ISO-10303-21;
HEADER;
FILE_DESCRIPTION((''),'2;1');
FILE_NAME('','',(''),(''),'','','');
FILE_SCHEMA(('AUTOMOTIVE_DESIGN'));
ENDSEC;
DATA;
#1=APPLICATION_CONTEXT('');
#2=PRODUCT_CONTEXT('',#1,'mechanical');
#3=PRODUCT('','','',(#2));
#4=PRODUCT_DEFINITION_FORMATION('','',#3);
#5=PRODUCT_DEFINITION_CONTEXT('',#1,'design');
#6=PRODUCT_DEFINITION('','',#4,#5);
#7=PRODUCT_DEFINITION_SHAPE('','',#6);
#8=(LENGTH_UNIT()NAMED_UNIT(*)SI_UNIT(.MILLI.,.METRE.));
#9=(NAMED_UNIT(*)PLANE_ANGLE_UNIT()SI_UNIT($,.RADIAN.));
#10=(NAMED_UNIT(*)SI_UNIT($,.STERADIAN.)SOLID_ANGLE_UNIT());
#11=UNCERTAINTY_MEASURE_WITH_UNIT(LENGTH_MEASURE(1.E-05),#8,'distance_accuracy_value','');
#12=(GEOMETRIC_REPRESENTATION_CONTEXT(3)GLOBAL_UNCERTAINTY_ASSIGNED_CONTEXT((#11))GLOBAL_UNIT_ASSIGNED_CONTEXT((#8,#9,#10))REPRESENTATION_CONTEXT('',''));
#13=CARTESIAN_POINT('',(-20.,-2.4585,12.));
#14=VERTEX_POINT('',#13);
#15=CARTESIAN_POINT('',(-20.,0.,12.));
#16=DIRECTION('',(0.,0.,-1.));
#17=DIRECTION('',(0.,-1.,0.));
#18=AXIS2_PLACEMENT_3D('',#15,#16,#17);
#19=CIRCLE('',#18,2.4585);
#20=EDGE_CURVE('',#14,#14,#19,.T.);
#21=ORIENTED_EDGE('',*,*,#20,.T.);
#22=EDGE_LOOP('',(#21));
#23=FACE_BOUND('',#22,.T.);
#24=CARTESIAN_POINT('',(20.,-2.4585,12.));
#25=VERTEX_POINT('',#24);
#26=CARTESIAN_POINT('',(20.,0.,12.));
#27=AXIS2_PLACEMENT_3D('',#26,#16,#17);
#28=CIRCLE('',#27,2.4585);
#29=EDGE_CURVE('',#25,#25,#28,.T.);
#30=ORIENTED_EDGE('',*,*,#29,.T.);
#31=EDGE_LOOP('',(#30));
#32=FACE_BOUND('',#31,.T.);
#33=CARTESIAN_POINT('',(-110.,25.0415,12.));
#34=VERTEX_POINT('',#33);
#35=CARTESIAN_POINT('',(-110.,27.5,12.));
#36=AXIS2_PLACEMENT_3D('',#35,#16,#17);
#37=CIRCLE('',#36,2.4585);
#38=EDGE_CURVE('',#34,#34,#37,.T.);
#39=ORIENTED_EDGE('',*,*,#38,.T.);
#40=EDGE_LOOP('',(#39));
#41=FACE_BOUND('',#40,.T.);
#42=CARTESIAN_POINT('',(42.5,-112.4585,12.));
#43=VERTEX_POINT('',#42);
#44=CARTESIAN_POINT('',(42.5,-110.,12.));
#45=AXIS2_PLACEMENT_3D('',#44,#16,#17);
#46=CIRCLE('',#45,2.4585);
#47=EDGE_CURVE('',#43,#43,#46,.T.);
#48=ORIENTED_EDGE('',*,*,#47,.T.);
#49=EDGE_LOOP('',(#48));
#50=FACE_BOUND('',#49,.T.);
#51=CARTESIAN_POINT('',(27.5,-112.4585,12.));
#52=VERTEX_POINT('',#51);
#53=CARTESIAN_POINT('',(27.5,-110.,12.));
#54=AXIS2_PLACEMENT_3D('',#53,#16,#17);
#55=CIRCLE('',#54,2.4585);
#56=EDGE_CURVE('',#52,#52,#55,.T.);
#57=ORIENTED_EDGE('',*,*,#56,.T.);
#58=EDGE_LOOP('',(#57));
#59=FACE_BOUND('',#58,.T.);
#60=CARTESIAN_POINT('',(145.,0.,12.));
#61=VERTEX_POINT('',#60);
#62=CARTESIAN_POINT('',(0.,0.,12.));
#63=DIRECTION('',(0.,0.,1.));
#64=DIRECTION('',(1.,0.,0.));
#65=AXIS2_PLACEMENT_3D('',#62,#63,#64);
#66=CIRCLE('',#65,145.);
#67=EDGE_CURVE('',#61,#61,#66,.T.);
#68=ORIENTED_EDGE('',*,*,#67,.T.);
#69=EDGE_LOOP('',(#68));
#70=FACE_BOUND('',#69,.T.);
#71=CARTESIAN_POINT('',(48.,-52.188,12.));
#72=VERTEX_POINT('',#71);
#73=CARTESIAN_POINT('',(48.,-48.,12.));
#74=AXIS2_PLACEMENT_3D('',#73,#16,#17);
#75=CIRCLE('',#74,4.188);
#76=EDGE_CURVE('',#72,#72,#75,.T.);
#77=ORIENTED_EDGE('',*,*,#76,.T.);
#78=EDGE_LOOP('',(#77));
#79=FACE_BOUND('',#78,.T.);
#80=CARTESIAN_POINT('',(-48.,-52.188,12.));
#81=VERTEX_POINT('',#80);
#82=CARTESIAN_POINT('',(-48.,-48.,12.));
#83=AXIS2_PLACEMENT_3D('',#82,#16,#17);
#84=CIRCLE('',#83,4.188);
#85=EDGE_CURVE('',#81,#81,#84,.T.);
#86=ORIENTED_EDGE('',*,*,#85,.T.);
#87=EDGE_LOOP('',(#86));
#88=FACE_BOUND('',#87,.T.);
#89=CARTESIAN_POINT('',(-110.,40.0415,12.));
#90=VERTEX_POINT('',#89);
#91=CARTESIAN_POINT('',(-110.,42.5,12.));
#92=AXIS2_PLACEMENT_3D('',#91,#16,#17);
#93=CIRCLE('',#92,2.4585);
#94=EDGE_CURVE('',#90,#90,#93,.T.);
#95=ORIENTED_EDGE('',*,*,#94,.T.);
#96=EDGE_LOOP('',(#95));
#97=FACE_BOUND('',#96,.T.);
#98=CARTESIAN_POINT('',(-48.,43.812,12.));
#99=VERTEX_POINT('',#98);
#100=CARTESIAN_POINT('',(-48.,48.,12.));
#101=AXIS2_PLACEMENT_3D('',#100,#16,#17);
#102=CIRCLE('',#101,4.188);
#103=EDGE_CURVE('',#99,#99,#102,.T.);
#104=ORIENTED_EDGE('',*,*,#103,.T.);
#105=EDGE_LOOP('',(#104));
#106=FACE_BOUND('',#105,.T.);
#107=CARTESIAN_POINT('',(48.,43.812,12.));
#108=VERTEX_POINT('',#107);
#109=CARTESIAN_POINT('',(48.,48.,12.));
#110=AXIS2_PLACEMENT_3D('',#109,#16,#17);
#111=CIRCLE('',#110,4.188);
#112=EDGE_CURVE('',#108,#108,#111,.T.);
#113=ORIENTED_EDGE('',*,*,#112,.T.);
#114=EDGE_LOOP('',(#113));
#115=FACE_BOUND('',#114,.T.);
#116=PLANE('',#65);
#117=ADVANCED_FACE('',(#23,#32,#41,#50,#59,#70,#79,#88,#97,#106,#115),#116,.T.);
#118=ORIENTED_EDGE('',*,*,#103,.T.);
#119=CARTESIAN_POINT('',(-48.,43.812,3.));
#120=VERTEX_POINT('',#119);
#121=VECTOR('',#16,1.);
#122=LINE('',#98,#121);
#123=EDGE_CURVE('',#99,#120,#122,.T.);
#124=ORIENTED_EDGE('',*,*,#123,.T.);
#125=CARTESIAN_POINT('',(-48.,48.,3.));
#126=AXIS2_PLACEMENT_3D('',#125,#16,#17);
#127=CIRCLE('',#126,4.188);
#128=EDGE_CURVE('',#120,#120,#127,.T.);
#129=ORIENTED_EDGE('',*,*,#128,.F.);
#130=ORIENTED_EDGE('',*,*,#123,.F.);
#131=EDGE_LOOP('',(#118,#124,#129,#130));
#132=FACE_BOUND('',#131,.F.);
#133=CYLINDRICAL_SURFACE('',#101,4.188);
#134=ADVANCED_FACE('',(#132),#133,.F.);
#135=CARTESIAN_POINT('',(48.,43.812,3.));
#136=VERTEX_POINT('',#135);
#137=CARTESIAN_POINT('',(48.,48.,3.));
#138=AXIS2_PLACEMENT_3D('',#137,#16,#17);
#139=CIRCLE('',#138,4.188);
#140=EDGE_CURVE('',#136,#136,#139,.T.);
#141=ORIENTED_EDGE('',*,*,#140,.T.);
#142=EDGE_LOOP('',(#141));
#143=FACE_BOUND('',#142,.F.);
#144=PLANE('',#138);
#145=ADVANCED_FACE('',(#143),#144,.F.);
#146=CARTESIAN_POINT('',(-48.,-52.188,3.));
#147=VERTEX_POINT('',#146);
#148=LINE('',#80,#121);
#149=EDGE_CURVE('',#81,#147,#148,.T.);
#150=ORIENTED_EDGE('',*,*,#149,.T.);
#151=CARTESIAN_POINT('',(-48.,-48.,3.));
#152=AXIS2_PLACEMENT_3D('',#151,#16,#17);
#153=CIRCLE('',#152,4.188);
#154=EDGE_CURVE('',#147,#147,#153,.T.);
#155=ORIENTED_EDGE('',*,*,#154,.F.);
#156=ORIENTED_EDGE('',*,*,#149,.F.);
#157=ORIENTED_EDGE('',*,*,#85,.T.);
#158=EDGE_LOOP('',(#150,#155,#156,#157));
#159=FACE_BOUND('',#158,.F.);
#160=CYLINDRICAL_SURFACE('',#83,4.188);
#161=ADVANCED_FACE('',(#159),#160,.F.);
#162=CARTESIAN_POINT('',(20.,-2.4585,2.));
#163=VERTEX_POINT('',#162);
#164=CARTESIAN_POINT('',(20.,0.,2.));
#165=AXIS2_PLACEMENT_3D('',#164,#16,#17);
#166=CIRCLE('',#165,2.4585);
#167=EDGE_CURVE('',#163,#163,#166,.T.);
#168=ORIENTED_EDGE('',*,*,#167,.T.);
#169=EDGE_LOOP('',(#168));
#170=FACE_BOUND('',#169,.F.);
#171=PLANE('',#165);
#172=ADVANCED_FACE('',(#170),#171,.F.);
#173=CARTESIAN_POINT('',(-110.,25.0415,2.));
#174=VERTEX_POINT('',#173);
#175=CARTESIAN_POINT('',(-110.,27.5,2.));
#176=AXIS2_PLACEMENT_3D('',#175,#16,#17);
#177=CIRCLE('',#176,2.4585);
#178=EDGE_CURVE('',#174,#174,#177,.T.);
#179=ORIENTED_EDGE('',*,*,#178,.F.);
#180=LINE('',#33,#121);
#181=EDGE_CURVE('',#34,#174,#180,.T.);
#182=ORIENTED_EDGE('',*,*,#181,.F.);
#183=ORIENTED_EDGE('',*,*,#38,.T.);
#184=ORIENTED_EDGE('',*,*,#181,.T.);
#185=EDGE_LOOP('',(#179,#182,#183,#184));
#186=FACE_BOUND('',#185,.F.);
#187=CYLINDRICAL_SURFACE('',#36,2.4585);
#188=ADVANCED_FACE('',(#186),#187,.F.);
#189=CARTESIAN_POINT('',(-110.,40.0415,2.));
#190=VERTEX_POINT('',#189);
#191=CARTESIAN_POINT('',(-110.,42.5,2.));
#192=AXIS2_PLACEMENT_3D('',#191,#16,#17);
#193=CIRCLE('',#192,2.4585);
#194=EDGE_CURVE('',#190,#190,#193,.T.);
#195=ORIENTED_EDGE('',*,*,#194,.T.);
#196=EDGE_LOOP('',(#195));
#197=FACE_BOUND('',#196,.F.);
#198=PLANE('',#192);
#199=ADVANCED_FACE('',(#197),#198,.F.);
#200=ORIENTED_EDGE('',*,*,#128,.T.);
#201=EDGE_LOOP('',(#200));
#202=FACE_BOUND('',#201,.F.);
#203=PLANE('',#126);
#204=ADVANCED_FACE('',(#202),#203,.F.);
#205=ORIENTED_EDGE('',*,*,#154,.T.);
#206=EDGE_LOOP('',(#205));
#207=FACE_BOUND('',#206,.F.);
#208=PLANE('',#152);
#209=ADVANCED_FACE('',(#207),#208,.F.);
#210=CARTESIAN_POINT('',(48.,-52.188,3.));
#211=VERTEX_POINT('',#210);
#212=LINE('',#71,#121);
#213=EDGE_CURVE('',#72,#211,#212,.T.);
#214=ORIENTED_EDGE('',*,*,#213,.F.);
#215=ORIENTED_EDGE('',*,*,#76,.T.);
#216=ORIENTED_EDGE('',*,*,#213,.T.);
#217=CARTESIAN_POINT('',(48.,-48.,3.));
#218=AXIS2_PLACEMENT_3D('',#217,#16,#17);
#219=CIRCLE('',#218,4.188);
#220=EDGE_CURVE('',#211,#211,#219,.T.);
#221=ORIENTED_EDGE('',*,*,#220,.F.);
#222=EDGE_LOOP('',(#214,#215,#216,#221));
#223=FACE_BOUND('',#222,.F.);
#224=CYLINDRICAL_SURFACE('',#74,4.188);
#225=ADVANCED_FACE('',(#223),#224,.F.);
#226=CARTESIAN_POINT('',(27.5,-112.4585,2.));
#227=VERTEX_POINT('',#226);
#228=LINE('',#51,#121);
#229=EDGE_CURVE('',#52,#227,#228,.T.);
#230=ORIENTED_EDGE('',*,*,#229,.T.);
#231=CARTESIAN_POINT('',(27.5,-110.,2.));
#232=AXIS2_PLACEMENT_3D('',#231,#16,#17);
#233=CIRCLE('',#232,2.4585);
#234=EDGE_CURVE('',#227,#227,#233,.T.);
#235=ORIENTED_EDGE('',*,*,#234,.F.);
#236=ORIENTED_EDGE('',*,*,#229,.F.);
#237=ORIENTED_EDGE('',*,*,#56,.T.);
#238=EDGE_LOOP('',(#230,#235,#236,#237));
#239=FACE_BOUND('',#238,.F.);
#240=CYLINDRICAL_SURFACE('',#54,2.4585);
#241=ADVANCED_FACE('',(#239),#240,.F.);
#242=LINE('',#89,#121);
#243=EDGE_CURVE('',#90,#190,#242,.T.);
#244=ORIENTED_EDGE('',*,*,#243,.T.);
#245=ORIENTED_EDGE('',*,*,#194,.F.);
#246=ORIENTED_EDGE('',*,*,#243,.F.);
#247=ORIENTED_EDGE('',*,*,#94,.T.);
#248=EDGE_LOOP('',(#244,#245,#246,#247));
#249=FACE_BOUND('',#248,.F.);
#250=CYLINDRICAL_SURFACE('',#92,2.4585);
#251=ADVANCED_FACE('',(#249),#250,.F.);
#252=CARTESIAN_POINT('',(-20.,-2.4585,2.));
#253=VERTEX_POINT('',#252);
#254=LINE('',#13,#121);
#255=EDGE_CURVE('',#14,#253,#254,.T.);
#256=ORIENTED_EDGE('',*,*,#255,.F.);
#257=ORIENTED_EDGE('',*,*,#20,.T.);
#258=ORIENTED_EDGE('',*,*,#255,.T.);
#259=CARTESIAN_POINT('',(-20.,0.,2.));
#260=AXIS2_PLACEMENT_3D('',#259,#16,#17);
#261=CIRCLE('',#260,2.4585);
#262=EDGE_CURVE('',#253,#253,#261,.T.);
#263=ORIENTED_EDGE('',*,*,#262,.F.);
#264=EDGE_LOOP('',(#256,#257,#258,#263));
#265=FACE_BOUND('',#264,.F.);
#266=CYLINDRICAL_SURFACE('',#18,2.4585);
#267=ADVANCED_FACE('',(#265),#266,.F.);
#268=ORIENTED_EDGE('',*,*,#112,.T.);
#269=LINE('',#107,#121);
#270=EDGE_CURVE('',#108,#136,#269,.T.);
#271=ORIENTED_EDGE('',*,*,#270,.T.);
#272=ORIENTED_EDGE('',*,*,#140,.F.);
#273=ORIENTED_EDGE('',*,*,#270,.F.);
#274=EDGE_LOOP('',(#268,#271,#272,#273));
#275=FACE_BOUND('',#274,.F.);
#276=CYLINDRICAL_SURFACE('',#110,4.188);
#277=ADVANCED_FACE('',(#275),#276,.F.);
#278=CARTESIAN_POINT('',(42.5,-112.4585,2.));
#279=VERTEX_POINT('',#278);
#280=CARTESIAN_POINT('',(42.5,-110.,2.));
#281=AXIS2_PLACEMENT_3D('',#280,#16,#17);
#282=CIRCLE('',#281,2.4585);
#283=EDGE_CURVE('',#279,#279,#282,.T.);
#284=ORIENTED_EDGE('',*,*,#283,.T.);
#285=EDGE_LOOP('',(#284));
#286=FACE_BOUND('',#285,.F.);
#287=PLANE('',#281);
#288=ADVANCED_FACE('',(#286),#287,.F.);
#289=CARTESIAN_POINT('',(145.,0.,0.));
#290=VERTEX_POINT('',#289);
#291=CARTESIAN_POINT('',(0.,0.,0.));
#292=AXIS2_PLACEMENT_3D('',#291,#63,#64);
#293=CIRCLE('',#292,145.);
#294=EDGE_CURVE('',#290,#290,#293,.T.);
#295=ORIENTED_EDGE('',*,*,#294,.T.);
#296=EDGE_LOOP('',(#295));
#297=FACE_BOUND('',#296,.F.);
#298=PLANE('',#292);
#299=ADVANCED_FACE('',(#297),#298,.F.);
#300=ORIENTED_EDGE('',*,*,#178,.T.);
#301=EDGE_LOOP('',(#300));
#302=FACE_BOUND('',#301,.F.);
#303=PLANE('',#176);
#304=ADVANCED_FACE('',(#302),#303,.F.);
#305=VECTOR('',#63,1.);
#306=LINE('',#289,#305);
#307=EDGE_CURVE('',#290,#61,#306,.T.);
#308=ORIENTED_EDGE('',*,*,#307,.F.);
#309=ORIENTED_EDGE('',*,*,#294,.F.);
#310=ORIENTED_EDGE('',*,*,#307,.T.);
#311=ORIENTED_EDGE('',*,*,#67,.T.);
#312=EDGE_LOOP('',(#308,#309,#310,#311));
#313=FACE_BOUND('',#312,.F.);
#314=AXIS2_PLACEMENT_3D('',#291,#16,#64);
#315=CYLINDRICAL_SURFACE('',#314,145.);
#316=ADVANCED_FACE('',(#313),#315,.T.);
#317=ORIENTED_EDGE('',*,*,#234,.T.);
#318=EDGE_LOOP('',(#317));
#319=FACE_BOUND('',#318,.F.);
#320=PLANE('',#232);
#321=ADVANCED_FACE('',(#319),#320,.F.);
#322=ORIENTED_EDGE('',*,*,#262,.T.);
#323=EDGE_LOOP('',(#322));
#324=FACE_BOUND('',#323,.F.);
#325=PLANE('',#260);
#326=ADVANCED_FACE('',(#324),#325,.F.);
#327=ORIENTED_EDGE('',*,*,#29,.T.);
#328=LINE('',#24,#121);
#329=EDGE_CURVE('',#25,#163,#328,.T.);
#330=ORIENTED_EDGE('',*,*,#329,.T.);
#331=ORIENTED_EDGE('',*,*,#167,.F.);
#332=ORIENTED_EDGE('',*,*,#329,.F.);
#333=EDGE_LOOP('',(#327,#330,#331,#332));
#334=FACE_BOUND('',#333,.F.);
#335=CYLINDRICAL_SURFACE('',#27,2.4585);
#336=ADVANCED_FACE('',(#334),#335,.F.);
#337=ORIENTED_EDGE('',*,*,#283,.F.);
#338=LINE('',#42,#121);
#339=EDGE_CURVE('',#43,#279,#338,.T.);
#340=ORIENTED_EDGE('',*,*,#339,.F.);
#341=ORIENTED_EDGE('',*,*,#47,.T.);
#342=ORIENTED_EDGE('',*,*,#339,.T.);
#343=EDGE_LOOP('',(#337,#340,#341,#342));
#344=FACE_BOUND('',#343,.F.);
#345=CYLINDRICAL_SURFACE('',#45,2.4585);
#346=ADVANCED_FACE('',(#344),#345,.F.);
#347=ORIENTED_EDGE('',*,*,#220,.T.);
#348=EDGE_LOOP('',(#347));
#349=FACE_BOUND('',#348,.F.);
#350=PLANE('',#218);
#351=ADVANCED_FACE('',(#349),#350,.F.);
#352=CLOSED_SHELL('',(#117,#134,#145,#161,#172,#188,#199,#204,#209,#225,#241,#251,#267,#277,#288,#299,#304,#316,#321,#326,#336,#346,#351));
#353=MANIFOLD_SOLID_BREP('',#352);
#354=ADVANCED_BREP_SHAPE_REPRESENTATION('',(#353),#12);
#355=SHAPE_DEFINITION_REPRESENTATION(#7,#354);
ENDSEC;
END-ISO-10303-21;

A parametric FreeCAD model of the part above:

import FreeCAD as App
import Part
import Sketcher

V = App.Vector

doc = App.newDocument("Part")
body = doc.addObject("PartDesign::Body", "Body")

# Sketch on XY plane
sketch1 = doc.addObject("Sketcher::SketchObject", "Sketch")
body.addObject(sketch1)
sketch1.AttachmentSupport = (doc.XY_Plane, [""])
sketch1.MapMode = "FlatFace"
sketch1.addGeometry(Part.Circle(V(0, 0, 0), V(0, 0, 1), 145), False)
sketch1.addConstraint([
    Sketcher.Constraint("Coincident", 0, 3, -1, 1),
    Sketcher.Constraint("Diameter", 0, 290.0),
])
pad1 = doc.addObject("PartDesign::Pad", "Pad")
body.addObject(pad1)
pad1.Profile = sketch1
pad1.Length = 12

# Sketch on XY plane
sketch2 = doc.addObject("Sketcher::SketchObject", "Sketch001")
body.addObject(sketch2)
sketch2.AttachmentSupport = (doc.XY_Plane, [""])
sketch2.MapMode = "FlatFace"
sketch2.AttachmentOffset = App.Placement(V(0, 0, 12), App.Rotation())
sketch2.addGeometry(Part.Circle(V(-20, 0, 0), V(0, 0, 1), 2.4585), False)
sketch2.addConstraint([
    Sketcher.Constraint("PointOnObject", 0, 3, -1),
    Sketcher.Constraint("Diameter", 0, 4.917),
    Sketcher.Constraint("DistanceX", 0, 3, -1, 1, 20.0),
])
doc.recompute()
hole = doc.addObject("PartDesign::Hole", "Hole")
body.addObject(hole)
hole.Profile = sketch2
hole.ThreadType = "None"
hole.Diameter = 4.917
hole.DepthType = "Dimension"
hole.Depth = 10
hole.DrillPoint = "Flat"

# Sketch on XY plane
sketch3 = doc.addObject("Sketcher::SketchObject", "Sketch002")
body.addObject(sketch3)
sketch3.AttachmentSupport = (doc.XY_Plane, [""])
sketch3.MapMode = "FlatFace"
sketch3.AttachmentOffset = App.Placement(V(0, 0, 12), App.Rotation())
sketch3.addGeometry(Part.Circle(V(20, 0, 0), V(0, 0, 1), 2.4585), False)
sketch3.addConstraint([
    Sketcher.Constraint("PointOnObject", 0, 3, -1),
    Sketcher.Constraint("Diameter", 0, 4.917),
    Sketcher.Constraint("DistanceX", -1, 1, 0, 3, 20.0),
])
doc.recompute()
hole2 = doc.addObject("PartDesign::Hole", "Hole001")
body.addObject(hole2)
hole2.Profile = sketch3
hole2.ThreadType = "None"
hole2.Diameter = 4.917
hole2.DepthType = "Dimension"
hole2.Depth = 10
hole2.DrillPoint = "Flat"

# Sketch on XY plane
sketch4 = doc.addObject("Sketcher::SketchObject", "Sketch003")
body.addObject(sketch4)
sketch4.AttachmentSupport = (doc.XY_Plane, [""])
sketch4.MapMode = "FlatFace"
sketch4.AttachmentOffset = App.Placement(V(0, 0, 12), App.Rotation())
sketch4.addGeometry(Part.Circle(V(-110, 42.5, 0), V(0, 0, 1), 2.4585), False)
sketch4.addConstraint([
    Sketcher.Constraint("Diameter", 0, 4.917),
    Sketcher.Constraint("DistanceX", 0, 3, -1, 1, 110.0),
    Sketcher.Constraint("DistanceY", -1, 1, 0, 3, 42.5),
])
doc.recompute()
hole3 = doc.addObject("PartDesign::Hole", "Hole002")
body.addObject(hole3)
hole3.Profile = sketch4
hole3.ThreadType = "None"
hole3.Diameter = 4.917
hole3.DepthType = "Dimension"
hole3.Depth = 10
hole3.DrillPoint = "Flat"

# Sketch on XY plane
sketch5 = doc.addObject("Sketcher::SketchObject", "Sketch004")
body.addObject(sketch5)
sketch5.AttachmentSupport = (doc.XY_Plane, [""])
sketch5.MapMode = "FlatFace"
sketch5.AttachmentOffset = App.Placement(V(0, 0, 12), App.Rotation())
sketch5.addGeometry(Part.Circle(V(-110, 27.5, 0), V(0, 0, 1), 2.4585), False)
sketch5.addConstraint([
    Sketcher.Constraint("Diameter", 0, 4.917),
    Sketcher.Constraint("DistanceX", 0, 3, -1, 1, 110.0),
    Sketcher.Constraint("DistanceY", -1, 1, 0, 3, 27.5),
])
doc.recompute()
hole4 = doc.addObject("PartDesign::Hole", "Hole003")
body.addObject(hole4)
hole4.Profile = sketch5
hole4.ThreadType = "None"
hole4.Diameter = 4.917
hole4.DepthType = "Dimension"
hole4.Depth = 10
hole4.DrillPoint = "Flat"

# Sketch on XY plane
sketch6 = doc.addObject("Sketcher::SketchObject", "Sketch005")
body.addObject(sketch6)
sketch6.AttachmentSupport = (doc.XY_Plane, [""])
sketch6.MapMode = "FlatFace"
sketch6.AttachmentOffset = App.Placement(V(0, 0, 12), App.Rotation())
sketch6.addGeometry(Part.Circle(V(42.5, -110, 0), V(0, 0, 1), 2.4585), False)
sketch6.addConstraint([
    Sketcher.Constraint("Diameter", 0, 4.917),
    Sketcher.Constraint("DistanceY", 0, 3, -1, 1, 110.0),
    Sketcher.Constraint("DistanceX", -1, 1, 0, 3, 42.5),
])
doc.recompute()
hole5 = doc.addObject("PartDesign::Hole", "Hole004")
body.addObject(hole5)
hole5.Profile = sketch6
hole5.ThreadType = "None"
hole5.Diameter = 4.917
hole5.DepthType = "Dimension"
hole5.Depth = 10
hole5.DrillPoint = "Flat"

# Sketch on XY plane
sketch7 = doc.addObject("Sketcher::SketchObject", "Sketch006")
body.addObject(sketch7)
sketch7.AttachmentSupport = (doc.XY_Plane, [""])
sketch7.MapMode = "FlatFace"
sketch7.AttachmentOffset = App.Placement(V(0, 0, 12), App.Rotation())
sketch7.addGeometry(Part.Circle(V(27.5, -110, 0), V(0, 0, 1), 2.4585), False)
sketch7.addConstraint([
    Sketcher.Constraint("Diameter", 0, 4.917),
    Sketcher.Constraint("DistanceY", 0, 3, -1, 1, 110.0),
    Sketcher.Constraint("DistanceX", -1, 1, 0, 3, 27.5),
])
doc.recompute()
hole6 = doc.addObject("PartDesign::Hole", "Hole005")
body.addObject(hole6)
hole6.Profile = sketch7
hole6.ThreadType = "None"
hole6.Diameter = 4.917
hole6.DepthType = "Dimension"
hole6.Depth = 10
hole6.DrillPoint = "Flat"

# Sketch on XY plane
sketch8 = doc.addObject("Sketcher::SketchObject", "Sketch007")
body.addObject(sketch8)
sketch8.AttachmentSupport = (doc.XY_Plane, [""])
sketch8.MapMode = "FlatFace"
sketch8.AttachmentOffset = App.Placement(V(0, 0, 12), App.Rotation())
sketch8.addGeometry(Part.Circle(V(48, -48, 0), V(0, 0, 1), 4.188), False)
sketch8.addConstraint([
    Sketcher.Constraint("Diameter", 0, 8.376),
    Sketcher.Constraint("DistanceX", -1, 1, 0, 3, 48.0),
    Sketcher.Constraint("DistanceY", 0, 3, -1, 1, 48.0),
])
doc.recompute()
hole7 = doc.addObject("PartDesign::Hole", "Hole006")
body.addObject(hole7)
hole7.Profile = sketch8
hole7.ThreadType = "None"
hole7.Diameter = 8.376
hole7.DepthType = "Dimension"
hole7.Depth = 9
hole7.DrillPoint = "Flat"

# Sketch on XY plane
sketch9 = doc.addObject("Sketcher::SketchObject", "Sketch008")
body.addObject(sketch9)
sketch9.AttachmentSupport = (doc.XY_Plane, [""])
sketch9.MapMode = "FlatFace"
sketch9.AttachmentOffset = App.Placement(V(0, 0, 12), App.Rotation())
sketch9.addGeometry(Part.Circle(V(-48, -48, 0), V(0, 0, 1), 4.188), False)
sketch9.addConstraint([
    Sketcher.Constraint("Diameter", 0, 8.376),
    Sketcher.Constraint("DistanceX", 0, 3, -1, 1, 48.0),
    Sketcher.Constraint("DistanceY", 0, 3, -1, 1, 48.0),
])
doc.recompute()
hole8 = doc.addObject("PartDesign::Hole", "Hole007")
body.addObject(hole8)
hole8.Profile = sketch9
hole8.ThreadType = "None"
hole8.Diameter = 8.376
hole8.DepthType = "Dimension"
hole8.Depth = 9
hole8.DrillPoint = "Flat"

# Sketch on XY plane
sketch10 = doc.addObject("Sketcher::SketchObject", "Sketch009")
body.addObject(sketch10)
sketch10.AttachmentSupport = (doc.XY_Plane, [""])
sketch10.MapMode = "FlatFace"
sketch10.AttachmentOffset = App.Placement(V(0, 0, 12), App.Rotation())
sketch10.addGeometry(Part.Circle(V(-48, 48, 0), V(0, 0, 1), 4.188), False)
sketch10.addConstraint([
    Sketcher.Constraint("Diameter", 0, 8.376),
    Sketcher.Constraint("DistanceX", 0, 3, -1, 1, 48.0),
    Sketcher.Constraint("DistanceY", -1, 1, 0, 3, 48.0),
])
doc.recompute()
hole9 = doc.addObject("PartDesign::Hole", "Hole008")
body.addObject(hole9)
hole9.Profile = sketch10
hole9.ThreadType = "None"
hole9.Diameter = 8.376
hole9.DepthType = "Dimension"
hole9.Depth = 9
hole9.DrillPoint = "Flat"

# Sketch on XY plane
sketch11 = doc.addObject("Sketcher::SketchObject", "Sketch010")
body.addObject(sketch11)
sketch11.AttachmentSupport = (doc.XY_Plane, [""])
sketch11.MapMode = "FlatFace"
sketch11.AttachmentOffset = App.Placement(V(0, 0, 12), App.Rotation())
sketch11.addGeometry(Part.Circle(V(48, 48, 0), V(0, 0, 1), 4.188), False)
sketch11.addConstraint([
    Sketcher.Constraint("Diameter", 0, 8.376),
    Sketcher.Constraint("DistanceX", -1, 1, 0, 3, 48.0),
    Sketcher.Constraint("DistanceY", -1, 1, 0, 3, 48.0),
])
doc.recompute()
hole10 = doc.addObject("PartDesign::Hole", "Hole009")
body.addObject(hole10)
hole10.Profile = sketch11
hole10.ThreadType = "None"
hole10.Diameter = 8.376
hole10.DepthType = "Dimension"
hole10.Depth = 9
hole10.DrillPoint = "Flat"

doc.recompute()
